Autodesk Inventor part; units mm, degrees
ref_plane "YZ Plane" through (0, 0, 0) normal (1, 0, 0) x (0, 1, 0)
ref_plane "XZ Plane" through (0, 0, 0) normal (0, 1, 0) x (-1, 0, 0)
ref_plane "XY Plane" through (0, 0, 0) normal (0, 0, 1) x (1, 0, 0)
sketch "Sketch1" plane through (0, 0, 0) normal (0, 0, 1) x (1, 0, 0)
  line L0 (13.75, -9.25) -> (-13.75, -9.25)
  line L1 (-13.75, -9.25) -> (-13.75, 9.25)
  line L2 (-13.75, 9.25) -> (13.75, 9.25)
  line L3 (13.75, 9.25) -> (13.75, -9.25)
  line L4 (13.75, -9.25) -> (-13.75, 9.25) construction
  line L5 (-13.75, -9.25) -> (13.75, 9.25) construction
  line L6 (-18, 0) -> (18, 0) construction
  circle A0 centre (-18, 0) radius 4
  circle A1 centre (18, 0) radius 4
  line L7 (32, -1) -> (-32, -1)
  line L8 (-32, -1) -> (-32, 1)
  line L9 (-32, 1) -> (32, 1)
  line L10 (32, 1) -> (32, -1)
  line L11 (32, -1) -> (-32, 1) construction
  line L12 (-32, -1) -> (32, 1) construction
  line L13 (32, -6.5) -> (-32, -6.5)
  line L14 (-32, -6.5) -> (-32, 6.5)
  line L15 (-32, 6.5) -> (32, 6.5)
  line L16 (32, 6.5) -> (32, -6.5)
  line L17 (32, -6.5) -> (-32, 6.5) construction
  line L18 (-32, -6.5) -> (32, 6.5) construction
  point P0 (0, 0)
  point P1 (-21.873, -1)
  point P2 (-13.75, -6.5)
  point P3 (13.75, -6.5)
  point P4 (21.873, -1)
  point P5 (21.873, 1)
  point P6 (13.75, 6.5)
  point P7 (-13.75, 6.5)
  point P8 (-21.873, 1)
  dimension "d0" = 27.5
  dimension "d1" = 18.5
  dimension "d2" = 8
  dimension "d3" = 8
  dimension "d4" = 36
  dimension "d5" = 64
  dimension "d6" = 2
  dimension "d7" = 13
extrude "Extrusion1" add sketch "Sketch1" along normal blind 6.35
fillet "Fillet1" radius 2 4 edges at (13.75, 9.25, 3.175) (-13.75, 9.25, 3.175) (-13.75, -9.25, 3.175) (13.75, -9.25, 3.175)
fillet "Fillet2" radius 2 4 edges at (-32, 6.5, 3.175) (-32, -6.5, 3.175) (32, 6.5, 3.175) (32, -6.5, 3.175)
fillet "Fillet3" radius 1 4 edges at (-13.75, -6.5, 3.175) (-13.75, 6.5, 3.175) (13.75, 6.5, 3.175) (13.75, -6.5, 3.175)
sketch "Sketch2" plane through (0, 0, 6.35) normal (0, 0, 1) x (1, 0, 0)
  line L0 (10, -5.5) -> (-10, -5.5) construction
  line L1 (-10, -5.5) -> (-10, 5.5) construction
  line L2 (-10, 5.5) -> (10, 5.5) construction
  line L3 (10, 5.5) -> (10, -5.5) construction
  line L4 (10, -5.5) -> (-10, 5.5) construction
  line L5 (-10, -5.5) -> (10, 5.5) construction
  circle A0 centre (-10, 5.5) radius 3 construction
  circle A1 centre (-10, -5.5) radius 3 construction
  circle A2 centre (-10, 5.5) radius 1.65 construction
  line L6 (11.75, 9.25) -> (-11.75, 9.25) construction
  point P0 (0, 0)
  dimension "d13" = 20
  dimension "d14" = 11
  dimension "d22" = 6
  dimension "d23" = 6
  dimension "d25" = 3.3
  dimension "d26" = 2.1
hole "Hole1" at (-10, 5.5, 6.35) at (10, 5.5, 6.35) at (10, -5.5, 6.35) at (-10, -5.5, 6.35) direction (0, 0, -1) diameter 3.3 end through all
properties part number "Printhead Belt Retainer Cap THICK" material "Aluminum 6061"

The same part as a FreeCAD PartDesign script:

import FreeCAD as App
import Part
import Sketcher
Q = App.Units.Quantity


def edges_at(feature, points):
    """Names of the edges that pass closest to the given points."""
    edges = feature.Shape.Edges
    near = lambda p: min(range(len(edges)), key=lambda i: edges[i].distToShape(Part.Vertex(*p))[0])
    return sorted({f"Edge{near(p) + 1}" for p in points})

doc = App.newDocument("Part")
body = doc.addObject("PartDesign::Body", "Body")

# Sketch on XY plane
sketch1 = body.newObject("Sketcher::SketchObject", "Sketch")
sketch1.AttachmentSupport = (doc.getObject("XY_Plane"), [""])
sketch1.MapMode = "FlatFace"
sketch1.addGeometry([
    Part.LineSegment(App.Vector(-13.75, -9.25, 0), App.Vector(13.75, -9.25, 0)),  # 0
    Part.LineSegment(App.Vector(13.75, -9.25, 0), App.Vector(13.75, -6.5, 0)),  # 1
    Part.LineSegment(App.Vector(13.75, -6.5, 0), App.Vector(32, -6.5, 0)),  # 2
    Part.LineSegment(App.Vector(32, -6.5, 0), App.Vector(32, 6.5, 0)),  # 3
    Part.LineSegment(App.Vector(32, 6.5, 0), App.Vector(13.75, 6.5, 0)),  # 4
    Part.LineSegment(App.Vector(13.75, 6.5, 0), App.Vector(13.75, 9.25, 0)),  # 5
    Part.LineSegment(App.Vector(13.75, 9.25, 0), App.Vector(-13.75, 9.25, 0)),  # 6
    Part.LineSegment(App.Vector(-13.75, 9.25, 0), App.Vector(-13.75, 6.5, 0)),  # 7
    Part.LineSegment(App.Vector(-13.75, 6.5, 0), App.Vector(-32, 6.5, 0)),  # 8
    Part.LineSegment(App.Vector(-32, 6.5, 0), App.Vector(-32, -6.5, 0)),  # 9
    Part.LineSegment(App.Vector(-32, -6.5, 0), App.Vector(-13.75, -6.5, 0)),  # 10
    Part.LineSegment(App.Vector(-13.75, -6.5, 0), App.Vector(-13.75, -9.25, 0)),  # 11
], False)
sketch1.addConstraint([
    Sketcher.Constraint("Coincident", 0, 2, 1, 1),
    Sketcher.Constraint("Coincident", 1, 2, 2, 1),
    Sketcher.Constraint("Coincident", 2, 2, 3, 1),
    Sketcher.Constraint("Coincident", 3, 2, 4, 1),
    Sketcher.Constraint("Coincident", 4, 2, 5, 1),
    Sketcher.Constraint("Coincident", 5, 2, 6, 1),
    Sketcher.Constraint("Coincident", 6, 2, 7, 1),
    Sketcher.Constraint("Coincident", 7, 2, 8, 1),
    Sketcher.Constraint("Coincident", 8, 2, 9, 1),
    Sketcher.Constraint("Coincident", 9, 2, 10, 1),
    Sketcher.Constraint("Coincident", 10, 2, 11, 1),
    Sketcher.Constraint("Coincident", 11, 2, 0, 1),
    Sketcher.Constraint("Horizontal", 0),
    Sketcher.Constraint("Vertical", 1),
    Sketcher.Constraint("Horizontal", 2),
    Sketcher.Constraint("Vertical", 3),
    Sketcher.Constraint("Horizontal", 4),
    Sketcher.Constraint("Vertical", 5),
    Sketcher.Constraint("Horizontal", 6),
    Sketcher.Constraint("Vertical", 7),
    Sketcher.Constraint("Horizontal", 8),
    Sketcher.Constraint("Vertical", 9),
    Sketcher.Constraint("Horizontal", 10),
    Sketcher.Constraint("Vertical", 11),
    Sketcher.Constraint("Symmetric", 0, 2, 6, 2, -1, 1),
    Sketcher.Constraint("Symmetric", 2, 2, 8, 2, -1, 1),
    Sketcher.Constraint("Symmetric", 4, 2, 10, 2, -1, 1),
    Sketcher.Constraint("Symmetric", 4, 2, 7, 2, -2),
    Sketcher.Constraint("DistanceY", 3, 1, 3, 2, Q("13 mm")),
    Sketcher.Constraint("DistanceX", 0, 1, 0, 2, Q("27.5 mm")),
    Sketcher.Constraint("DistanceY", 0, 2, 5, 2, Q("18.5 mm")),
    Sketcher.Constraint("DistanceX", -1, 1, 2, 2, Q("32 mm")),
])
pad1 = body.newObject("PartDesign::Pad", "Pad")
pad1.Profile = sketch1
pad1.Length = 6.35
doc.recompute()

fillet = body.newObject("PartDesign::Fillet", "Fillet")
fillet.Base = (pad1, edges_at(pad1, [
    (13.75, 9.25, 3.175),
    (-13.75, 9.25, 3.175),
    (-13.75, -9.25, 3.175),
    (13.75, -9.25, 3.175),
]))
fillet.Radius = 2
doc.recompute()

fillet2 = body.newObject("PartDesign::Fillet", "Fillet001")
fillet2.Base = (fillet, edges_at(fillet, [
    (-32, 6.5, 3.175),
    (-32, -6.5, 3.175),
    (32, 6.5, 3.175),
    (32, -6.5, 3.175),
]))
fillet2.Radius = 2
doc.recompute()

fillet3 = body.newObject("PartDesign::Fillet", "Fillet002")
fillet3.Base = (fillet2, edges_at(fillet2, [
    (-13.75, -6.5, 3.175),
    (-13.75, 6.5, 3.175),
    (13.75, 6.5, 3.175),
    (13.75, -6.5, 3.175),
]))
fillet3.Radius = 1

# Sketch on XY plane
sketch2 = body.newObject("Sketcher::SketchObject", "Sketch001")
sketch2.AttachmentSupport = (doc.getObject("XY_Plane"), [""])
sketch2.MapMode = "FlatFace"
sketch2.AttachmentOffset = App.Placement(App.Vector(0, 0, 6.35), App.Rotation())
sketch2.addGeometry([
    Part.Circle(App.Vector(-10, 5.5, 0), App.Vector(0, 0, 1), 1.65),
    Part.Circle(App.Vector(10, 5.5, 0), App.Vector(0, 0, 1), 1.65),
    Part.Circle(App.Vector(10, -5.5, 0), App.Vector(0, 0, 1), 1.65),
    Part.Circle(App.Vector(-10, -5.5, 0), App.Vector(0, 0, 1), 1.65),
], False)
sketch2.addConstraint([
    Sketcher.Constraint("Equal", 0, 1),
    Sketcher.Constraint("Equal", 1, 2),
    Sketcher.Constraint("Equal", 2, 3),
    Sketcher.Constraint("Symmetric", 0, 3, 2, 3, -1, 1),
    Sketcher.Constraint("Symmetric", 1, 3, 3, 3, -1, 1),
    Sketcher.Constraint("Symmetric", 0, 3, 1, 3, -2),
    Sketcher.Constraint("Diameter", 0, Q("3.3 mm")),
    Sketcher.Constraint("DistanceX", 0, 3, -1, 1, Q("10 mm")),
    Sketcher.Constraint("DistanceY", 2, 3, 1, 3, Q("11 mm")),
])
doc.recompute()
hole = body.newObject("PartDesign::Hole", "Hole")
hole.Profile = sketch2
hole.ThreadType = "None"
hole.Diameter = 3.3
hole.DepthType = "ThroughAll"

doc.recompute()
